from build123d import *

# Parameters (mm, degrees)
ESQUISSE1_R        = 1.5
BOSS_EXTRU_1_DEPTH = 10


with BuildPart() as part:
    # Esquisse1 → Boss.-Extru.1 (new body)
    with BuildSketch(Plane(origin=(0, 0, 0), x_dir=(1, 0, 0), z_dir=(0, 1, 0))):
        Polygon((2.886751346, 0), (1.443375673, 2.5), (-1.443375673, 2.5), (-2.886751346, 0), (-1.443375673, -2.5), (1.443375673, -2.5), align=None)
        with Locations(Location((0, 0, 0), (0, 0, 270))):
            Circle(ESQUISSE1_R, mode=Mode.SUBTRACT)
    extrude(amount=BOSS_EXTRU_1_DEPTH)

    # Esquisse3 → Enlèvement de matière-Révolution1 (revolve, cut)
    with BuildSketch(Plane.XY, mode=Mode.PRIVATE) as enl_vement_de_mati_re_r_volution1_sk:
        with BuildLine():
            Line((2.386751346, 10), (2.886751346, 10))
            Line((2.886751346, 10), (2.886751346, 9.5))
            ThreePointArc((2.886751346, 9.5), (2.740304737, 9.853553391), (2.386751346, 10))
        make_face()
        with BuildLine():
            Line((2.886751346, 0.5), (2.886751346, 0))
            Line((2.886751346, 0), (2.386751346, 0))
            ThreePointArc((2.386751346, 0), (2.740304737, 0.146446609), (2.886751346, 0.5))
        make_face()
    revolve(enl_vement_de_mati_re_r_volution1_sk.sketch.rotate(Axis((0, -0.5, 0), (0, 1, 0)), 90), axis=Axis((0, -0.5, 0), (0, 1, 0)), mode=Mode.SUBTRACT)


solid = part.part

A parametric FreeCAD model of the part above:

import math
import FreeCAD as App
import Part
import Sketcher
from FreeCAD import Vector
Q = App.Units.Quantity

doc = App.newDocument("Part")
body = doc.addObject("PartDesign::Body", "Body")

sketch1 = body.newObject("Sketcher::SketchObject", "Sketch")
sketch1.AttachmentSupport = (doc.getObject("XZ_Plane"), [""])
sketch1.MapMode = "FlatFace"
sketch1.addGeometry(Part.LineSegment(Vector(2.9, 0, 0), Vector(1.4, -2.5, 0)), False)
sketch1.addGeometry(Part.LineSegment(Vector(1.4, -2.5, 0), Vector(-1.4, -2.5, 0)), False)
sketch1.addGeometry(Part.LineSegment(Vector(-1.4, -2.5, 0), Vector(-2.9, 0, 0)), False)
sketch1.addGeometry(Part.LineSegment(Vector(-2.9, 0, 0), Vector(-1.4, 2.5, 0)), False)
sketch1.addGeometry(Part.LineSegment(Vector(-1.4, 2.5, 0), Vector(1.4, 2.5, 0)), False)
sketch1.addGeometry(Part.LineSegment(Vector(1.4, 2.5, 0), Vector(2.9, 0, 0)), False)
sketch1.addGeometry(Part.Circle(Vector(0, 0, 0), Vector(0, 0, 1), 1.5), False)
sketch1.addConstraint(Sketcher.Constraint("Coincident", 0, 2, 1, 1))
sketch1.addConstraint(Sketcher.Constraint("Coincident", 1, 2, 2, 1))
sketch1.addConstraint(Sketcher.Constraint("Coincident", 2, 2, 3, 1))
sketch1.addConstraint(Sketcher.Constraint("Coincident", 3, 2, 4, 1))
sketch1.addConstraint(Sketcher.Constraint("Coincident", 4, 2, 5, 1))
sketch1.addConstraint(Sketcher.Constraint("Coincident", 5, 2, 0, 1))
sketch1.addConstraint(Sketcher.Constraint("Horizontal", 1))
sketch1.addConstraint(Sketcher.Constraint("Horizontal", 4))
sketch1.addConstraint(Sketcher.Constraint("Coincident", 6, 3, -1, 1))
sketch1.addConstraint(Sketcher.Constraint("Symmetric", 0, 2, 3, 2, -1, 1))
sketch1.addConstraint(Sketcher.Constraint("Symmetric", 2, 2, 5, 2, -1, 1))
sketch1.addConstraint(Sketcher.Constraint("PointOnObject", 2, 2, -1))
sketch1.addConstraint(Sketcher.Constraint("Parallel", 2, 5))
sketch1.addConstraint(Sketcher.Constraint("Vertical", 1, 2, 3, 2))
sketch1.addConstraint(Sketcher.Constraint("Diameter", 6, 3.0))
sketch1.addConstraint(Sketcher.Constraint("Angle", 0, Q("-120 deg")))
sketch1.addConstraint(Sketcher.Constraint("DistanceY", 1, 2, 3, 2, 5.0))
sketch1.addConstraint(Sketcher.Constraint("DistanceX", 1, 2, 1, 1, 2.886751))
pad1 = body.newObject("PartDesign::Pad", "Pad")
pad1.Profile = sketch1
pad1.Length = 10
pad1.Reversed = True

sketch2 = body.newObject("Sketcher::SketchObject", "Sketch001")
sketch2.AttachmentSupport = (doc.getObject("XY_Plane"), [""])
sketch2.MapMode = "FlatFace"
sketch2.addGeometry(Part.LineSegment(Vector(2.89, 10, 0), Vector(2.39, 10, 0)), False)
sketch2.addGeometry(Part.ArcOfCircle(Part.Circle(Vector(2.39, 9.5, 0), Vector(0, 0, 1), 0.5), math.radians(0), math.radians(90)), False)
sketch2.addGeometry(Part.LineSegment(Vector(2.89, 9.5, 0), Vector(2.89, 10, 0)), False)
sketch2.addGeometry(Part.LineSegment(Vector(2.89, 0, 0), Vector(2.89, 0.5, 0)), False)
sketch2.addGeometry(Part.ArcOfCircle(Part.Circle(Vector(2.39, 0.5, 0), Vector(0, 0, 1), 0.5), math.radians(-90), math.radians(0)), False)
sketch2.addGeometry(Part.LineSegment(Vector(2.39, 0, 0), Vector(2.89, 0, 0)), False)
sketch2.addConstraint(Sketcher.Constraint("Tangent", 0, 2, 1, 2))
sketch2.addConstraint(Sketcher.Constraint("Tangent", 1, 1, 2, 1))
sketch2.addConstraint(Sketcher.Constraint("Coincident", 2, 2, 0, 1))
sketch2.addConstraint(Sketcher.Constraint("Tangent", 3, 2, 4, 2))
sketch2.addConstraint(Sketcher.Constraint("Tangent", 4, 1, 5, 1))
sketch2.addConstraint(Sketcher.Constraint("Coincident", 5, 2, 3, 1))
sketch2.addConstraint(Sketcher.Constraint("Horizontal", 0))
sketch2.addConstraint(Sketcher.Constraint("Vertical", 2))
sketch2.addConstraint(Sketcher.Constraint("Vertical", 3))
sketch2.addConstraint(Sketcher.Constraint("Horizontal", 5))
sketch2.addConstraint(Sketcher.Constraint("Equal", 1, 4))
sketch2.addConstraint(Sketcher.Constraint("PointOnObject", 4, 1, -1))
sketch2.addConstraint(Sketcher.Constraint("Vertical", 1, 3, 4, 3))
sketch2.addConstraint(Sketcher.Constraint("Radius", 1, 0.5))
sketch2.addConstraint(Sketcher.Constraint("DistanceY", -1, 1, 0, 2, 10.0))
sketch2.addConstraint(Sketcher.Constraint("DistanceX", -1, 1, 1, 3, 2.386751))
groove = body.newObject("PartDesign::Groove", "Groove")
groove.Profile = sketch2
groove.ReferenceAxis = (sketch2, ["V_Axis"])
groove.Angle = 360

doc.recompute()
